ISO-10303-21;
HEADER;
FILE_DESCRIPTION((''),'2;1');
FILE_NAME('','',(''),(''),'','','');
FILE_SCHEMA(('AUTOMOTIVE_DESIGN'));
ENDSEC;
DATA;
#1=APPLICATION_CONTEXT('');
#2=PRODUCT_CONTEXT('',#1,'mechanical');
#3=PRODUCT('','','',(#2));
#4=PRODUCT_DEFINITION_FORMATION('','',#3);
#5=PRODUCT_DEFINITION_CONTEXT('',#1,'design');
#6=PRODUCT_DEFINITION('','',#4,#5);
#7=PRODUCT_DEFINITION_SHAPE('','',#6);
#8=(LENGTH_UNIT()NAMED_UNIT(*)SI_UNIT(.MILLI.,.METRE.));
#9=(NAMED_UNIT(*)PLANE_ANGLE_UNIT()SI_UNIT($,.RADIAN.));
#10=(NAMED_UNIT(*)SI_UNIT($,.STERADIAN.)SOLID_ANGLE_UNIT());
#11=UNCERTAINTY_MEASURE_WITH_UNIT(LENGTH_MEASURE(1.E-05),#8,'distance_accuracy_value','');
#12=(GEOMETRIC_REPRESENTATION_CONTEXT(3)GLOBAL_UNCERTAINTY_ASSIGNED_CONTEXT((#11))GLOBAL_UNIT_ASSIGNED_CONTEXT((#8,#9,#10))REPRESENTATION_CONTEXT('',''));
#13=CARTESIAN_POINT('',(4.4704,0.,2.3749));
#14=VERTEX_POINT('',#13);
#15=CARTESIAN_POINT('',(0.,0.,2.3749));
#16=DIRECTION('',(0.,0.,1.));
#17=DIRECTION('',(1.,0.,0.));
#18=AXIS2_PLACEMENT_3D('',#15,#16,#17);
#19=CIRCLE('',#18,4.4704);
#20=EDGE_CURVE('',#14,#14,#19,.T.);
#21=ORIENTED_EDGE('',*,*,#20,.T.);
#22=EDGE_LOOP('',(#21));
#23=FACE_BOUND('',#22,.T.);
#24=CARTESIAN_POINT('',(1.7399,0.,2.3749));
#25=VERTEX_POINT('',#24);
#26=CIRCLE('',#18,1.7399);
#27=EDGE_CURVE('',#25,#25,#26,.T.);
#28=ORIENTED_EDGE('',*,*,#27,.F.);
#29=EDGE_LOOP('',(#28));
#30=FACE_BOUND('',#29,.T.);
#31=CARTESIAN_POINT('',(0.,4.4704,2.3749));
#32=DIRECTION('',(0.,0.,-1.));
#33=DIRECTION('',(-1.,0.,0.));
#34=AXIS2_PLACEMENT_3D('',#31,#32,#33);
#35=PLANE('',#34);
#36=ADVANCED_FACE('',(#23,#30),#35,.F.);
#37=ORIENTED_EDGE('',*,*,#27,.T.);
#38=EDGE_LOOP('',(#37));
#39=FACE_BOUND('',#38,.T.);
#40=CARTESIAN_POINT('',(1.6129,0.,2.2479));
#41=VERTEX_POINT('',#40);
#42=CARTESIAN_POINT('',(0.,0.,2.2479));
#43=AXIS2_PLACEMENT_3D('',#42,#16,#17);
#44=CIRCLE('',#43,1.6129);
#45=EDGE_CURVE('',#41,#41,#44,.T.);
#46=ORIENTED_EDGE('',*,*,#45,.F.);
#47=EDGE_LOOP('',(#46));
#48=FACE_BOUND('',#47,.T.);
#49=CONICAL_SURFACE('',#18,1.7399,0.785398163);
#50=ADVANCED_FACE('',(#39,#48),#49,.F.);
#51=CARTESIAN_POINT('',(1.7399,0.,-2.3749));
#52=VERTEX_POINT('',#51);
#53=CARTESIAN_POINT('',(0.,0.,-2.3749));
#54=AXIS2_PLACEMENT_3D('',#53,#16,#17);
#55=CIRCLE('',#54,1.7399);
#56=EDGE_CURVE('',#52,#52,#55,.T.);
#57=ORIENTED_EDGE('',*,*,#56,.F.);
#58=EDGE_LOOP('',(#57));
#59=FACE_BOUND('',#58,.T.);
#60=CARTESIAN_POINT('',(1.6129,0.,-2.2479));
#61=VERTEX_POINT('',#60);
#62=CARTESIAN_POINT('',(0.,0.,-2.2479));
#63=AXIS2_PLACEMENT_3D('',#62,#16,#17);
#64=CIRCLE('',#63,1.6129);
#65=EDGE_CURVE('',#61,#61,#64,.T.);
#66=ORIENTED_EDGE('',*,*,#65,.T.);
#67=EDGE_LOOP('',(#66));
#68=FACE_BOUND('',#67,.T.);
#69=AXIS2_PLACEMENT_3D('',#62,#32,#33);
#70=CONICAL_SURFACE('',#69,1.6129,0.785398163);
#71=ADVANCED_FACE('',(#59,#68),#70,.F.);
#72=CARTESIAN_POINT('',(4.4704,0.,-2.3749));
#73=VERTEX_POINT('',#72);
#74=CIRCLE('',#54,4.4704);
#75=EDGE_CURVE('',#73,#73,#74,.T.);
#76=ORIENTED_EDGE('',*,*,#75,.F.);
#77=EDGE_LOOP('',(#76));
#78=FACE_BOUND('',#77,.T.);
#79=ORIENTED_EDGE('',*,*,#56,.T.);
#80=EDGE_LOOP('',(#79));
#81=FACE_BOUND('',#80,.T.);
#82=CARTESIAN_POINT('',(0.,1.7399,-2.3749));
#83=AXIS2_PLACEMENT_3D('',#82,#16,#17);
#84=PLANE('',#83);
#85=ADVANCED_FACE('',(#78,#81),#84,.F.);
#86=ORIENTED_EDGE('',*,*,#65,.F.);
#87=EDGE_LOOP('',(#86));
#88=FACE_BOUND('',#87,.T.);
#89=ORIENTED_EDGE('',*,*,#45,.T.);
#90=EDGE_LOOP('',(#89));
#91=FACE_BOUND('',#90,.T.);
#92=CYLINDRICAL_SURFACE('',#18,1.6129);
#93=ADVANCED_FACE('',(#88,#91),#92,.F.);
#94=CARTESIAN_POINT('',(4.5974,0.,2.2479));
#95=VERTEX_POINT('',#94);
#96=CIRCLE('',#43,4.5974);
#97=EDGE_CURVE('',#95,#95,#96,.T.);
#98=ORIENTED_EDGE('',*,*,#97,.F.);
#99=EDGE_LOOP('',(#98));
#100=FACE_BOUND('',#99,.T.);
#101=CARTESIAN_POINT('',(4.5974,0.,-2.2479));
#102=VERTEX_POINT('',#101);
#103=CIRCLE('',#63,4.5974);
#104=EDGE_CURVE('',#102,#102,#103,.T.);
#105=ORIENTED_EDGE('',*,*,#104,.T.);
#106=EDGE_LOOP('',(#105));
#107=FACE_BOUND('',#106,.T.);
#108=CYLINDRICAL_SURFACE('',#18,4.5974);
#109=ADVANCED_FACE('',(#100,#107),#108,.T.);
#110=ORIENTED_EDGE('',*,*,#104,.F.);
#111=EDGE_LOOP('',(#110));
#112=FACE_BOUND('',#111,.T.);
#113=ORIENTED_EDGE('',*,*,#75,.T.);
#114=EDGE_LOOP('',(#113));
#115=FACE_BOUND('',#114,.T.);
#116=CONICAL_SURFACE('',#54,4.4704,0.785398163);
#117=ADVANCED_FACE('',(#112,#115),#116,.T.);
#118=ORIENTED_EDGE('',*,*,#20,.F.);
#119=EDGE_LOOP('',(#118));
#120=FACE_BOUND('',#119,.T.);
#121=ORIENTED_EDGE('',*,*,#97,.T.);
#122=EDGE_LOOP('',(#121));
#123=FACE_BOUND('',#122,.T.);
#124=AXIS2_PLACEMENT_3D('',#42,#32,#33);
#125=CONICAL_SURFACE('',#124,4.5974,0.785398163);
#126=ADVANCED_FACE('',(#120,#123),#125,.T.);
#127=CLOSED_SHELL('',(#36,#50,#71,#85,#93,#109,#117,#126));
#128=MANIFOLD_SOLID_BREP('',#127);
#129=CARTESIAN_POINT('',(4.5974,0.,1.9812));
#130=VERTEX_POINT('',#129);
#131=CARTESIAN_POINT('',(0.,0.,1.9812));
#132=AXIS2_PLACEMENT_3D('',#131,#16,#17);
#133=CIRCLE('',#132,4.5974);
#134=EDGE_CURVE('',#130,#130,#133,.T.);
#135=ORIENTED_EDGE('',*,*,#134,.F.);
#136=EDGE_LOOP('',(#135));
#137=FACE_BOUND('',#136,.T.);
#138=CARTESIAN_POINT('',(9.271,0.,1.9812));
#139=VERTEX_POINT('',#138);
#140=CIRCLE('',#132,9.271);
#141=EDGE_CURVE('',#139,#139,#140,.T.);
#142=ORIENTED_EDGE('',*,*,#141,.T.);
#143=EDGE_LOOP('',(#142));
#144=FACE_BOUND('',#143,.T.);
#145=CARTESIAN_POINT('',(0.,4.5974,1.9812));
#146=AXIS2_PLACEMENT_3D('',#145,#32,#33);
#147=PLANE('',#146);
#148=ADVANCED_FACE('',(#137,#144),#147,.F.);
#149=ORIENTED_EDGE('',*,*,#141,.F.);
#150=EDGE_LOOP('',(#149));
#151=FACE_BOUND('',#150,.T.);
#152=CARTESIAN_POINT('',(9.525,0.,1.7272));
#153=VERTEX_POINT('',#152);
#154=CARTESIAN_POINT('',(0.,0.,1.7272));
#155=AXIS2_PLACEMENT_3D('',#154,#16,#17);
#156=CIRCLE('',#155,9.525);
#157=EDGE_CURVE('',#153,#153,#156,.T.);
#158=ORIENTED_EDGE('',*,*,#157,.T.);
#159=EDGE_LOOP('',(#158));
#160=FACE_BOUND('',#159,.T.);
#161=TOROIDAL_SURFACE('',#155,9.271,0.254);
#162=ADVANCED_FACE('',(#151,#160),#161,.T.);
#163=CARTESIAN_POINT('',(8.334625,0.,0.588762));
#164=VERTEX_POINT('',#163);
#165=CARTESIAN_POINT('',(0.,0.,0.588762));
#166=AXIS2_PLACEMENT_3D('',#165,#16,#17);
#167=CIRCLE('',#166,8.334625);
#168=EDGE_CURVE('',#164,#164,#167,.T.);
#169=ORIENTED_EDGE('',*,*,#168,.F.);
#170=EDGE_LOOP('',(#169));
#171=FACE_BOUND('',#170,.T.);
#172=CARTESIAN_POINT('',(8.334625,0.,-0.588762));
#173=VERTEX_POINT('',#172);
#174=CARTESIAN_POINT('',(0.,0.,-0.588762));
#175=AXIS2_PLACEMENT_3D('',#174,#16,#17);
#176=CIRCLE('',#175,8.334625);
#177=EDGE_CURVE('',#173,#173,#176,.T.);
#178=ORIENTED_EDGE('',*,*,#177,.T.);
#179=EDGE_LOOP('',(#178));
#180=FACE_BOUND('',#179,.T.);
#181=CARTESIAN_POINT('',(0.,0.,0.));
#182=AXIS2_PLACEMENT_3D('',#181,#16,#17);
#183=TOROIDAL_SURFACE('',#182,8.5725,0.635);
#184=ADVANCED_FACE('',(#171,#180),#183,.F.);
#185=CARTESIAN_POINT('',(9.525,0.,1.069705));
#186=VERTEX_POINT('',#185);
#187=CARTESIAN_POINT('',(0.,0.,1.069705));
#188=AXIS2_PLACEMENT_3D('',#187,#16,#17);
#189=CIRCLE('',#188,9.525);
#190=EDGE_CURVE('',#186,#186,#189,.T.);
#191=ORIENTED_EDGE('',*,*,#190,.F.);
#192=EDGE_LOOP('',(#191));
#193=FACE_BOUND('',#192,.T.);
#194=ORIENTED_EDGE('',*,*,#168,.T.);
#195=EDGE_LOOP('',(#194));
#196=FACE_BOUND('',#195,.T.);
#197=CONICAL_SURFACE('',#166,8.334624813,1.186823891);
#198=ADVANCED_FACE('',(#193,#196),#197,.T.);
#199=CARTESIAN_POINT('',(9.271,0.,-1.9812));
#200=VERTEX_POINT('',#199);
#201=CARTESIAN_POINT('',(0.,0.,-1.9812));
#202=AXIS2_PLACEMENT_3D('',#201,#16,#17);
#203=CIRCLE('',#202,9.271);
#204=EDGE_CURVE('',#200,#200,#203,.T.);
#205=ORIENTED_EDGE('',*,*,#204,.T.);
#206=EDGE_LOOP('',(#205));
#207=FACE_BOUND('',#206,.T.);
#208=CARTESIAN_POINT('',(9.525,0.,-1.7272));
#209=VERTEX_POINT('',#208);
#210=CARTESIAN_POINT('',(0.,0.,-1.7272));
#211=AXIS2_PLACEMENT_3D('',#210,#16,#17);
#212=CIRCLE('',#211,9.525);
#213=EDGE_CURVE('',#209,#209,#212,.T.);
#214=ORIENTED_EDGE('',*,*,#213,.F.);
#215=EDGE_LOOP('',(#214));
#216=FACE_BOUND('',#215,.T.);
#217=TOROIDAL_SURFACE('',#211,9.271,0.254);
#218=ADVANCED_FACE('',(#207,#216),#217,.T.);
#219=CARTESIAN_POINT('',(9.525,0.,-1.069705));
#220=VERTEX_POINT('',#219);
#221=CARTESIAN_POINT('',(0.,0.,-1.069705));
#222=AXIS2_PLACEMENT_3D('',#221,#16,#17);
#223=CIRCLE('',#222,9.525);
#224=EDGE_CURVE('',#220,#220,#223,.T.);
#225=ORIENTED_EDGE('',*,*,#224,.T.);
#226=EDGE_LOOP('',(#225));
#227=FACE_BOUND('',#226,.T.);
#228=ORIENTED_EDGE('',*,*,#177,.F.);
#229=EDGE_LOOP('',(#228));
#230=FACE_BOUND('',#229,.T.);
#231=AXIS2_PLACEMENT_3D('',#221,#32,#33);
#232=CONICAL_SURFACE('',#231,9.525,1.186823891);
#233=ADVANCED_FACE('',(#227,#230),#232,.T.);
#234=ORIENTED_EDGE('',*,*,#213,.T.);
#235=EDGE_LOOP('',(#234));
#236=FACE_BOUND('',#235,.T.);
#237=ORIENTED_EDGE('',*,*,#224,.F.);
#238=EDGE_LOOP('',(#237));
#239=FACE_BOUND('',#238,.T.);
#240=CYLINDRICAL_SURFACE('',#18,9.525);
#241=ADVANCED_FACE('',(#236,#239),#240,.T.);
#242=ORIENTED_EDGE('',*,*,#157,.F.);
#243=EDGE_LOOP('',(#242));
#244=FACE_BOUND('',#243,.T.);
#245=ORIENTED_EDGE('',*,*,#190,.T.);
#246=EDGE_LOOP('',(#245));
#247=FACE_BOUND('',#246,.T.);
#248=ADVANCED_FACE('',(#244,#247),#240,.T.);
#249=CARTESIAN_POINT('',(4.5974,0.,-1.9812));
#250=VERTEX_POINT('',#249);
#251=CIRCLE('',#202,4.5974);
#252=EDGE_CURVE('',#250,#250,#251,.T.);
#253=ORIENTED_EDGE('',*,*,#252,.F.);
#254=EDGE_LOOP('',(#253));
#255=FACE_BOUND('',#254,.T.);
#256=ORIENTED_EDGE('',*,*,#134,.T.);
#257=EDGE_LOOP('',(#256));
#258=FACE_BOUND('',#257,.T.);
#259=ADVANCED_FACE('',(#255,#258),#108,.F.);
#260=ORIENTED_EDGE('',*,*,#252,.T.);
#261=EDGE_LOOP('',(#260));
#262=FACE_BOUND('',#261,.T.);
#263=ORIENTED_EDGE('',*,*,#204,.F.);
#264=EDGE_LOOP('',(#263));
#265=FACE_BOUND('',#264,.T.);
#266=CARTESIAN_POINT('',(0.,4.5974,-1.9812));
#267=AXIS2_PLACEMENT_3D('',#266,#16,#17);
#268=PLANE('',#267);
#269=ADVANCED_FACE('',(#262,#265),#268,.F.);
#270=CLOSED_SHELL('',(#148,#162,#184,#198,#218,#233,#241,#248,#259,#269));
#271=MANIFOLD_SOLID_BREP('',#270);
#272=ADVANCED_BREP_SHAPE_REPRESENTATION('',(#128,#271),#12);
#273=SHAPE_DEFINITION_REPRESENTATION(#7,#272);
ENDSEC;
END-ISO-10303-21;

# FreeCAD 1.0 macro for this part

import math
import FreeCAD as App
import Part
import Sketcher
Q = App.Units.Quantity


def add_polygon(sketch, points):
    """Adds a closed chain of lines whose ends are joined by coincident constraints."""
    first, n = sketch.GeometryCount, len(points)
    for a, b in zip(points, points[1:] + points[:1]):
        sketch.addGeometry(Part.LineSegment(App.Vector(*a, 0), App.Vector(*b, 0)), False)
    for i in range(n):
        sketch.addConstraint(Sketcher.Constraint("Coincident", first + i, 2, first + (i + 1) % n, 1))

doc = App.newDocument("Part")
body = doc.addObject("PartDesign::Body", "Body")

sketch1 = body.newObject("Sketcher::SketchObject", "Sketch")
sketch1.AttachmentSupport = (doc.getObject("YZ_Plane"), [""])
sketch1.MapMode = "FlatFace"
add_polygon(sketch1, [(4.47, 2.37), (1.74, 2.37), (1.61, 2.25), (1.61, -2.25), (1.74, -2.37), (4.47, -2.37), (4.6, -2.25), (4.6, 2.25)])
sketch1.addConstraint([
    Sketcher.Constraint("Horizontal", 0),
    Sketcher.Constraint("Vertical", 2),
    Sketcher.Constraint("Horizontal", 4),
    Sketcher.Constraint("Vertical", 6),
    Sketcher.Constraint("Symmetric", 0, 2, 3, 2, -1),
    Sketcher.Constraint("Perpendicular", 1, 3),
    Sketcher.Constraint("Perpendicular", 3, 5),
    Sketcher.Constraint("Perpendicular", 5, 7),
    Sketcher.Constraint("Horizontal", 2, 2, 5, 2),
    Sketcher.Constraint("Horizontal", 1, 2, 6, 2),
    Sketcher.Constraint("Vertical", 4, 2, 7, 2),
    Sketcher.Constraint("DistanceY", 2, 2, 2, 1, Q("0.177 in")),
    Sketcher.Constraint("DistanceX", 0, 2, 0, 1, Q("0.1075 in")),
    Sketcher.Constraint("DistanceX", -1, 1, 4, 2, Q("0.176 in")),
    Sketcher.Constraint("DistanceX", -1, 1, 5, 2, Q("0.181 in")),
])
revolution = body.newObject("PartDesign::Revolution", "Revolution")
revolution.Profile = sketch1
revolution.ReferenceAxis = (sketch1, ["V_Axis"])
revolution.Angle = 360
body2 = doc.addObject("PartDesign::Body", "Body001")

sketch2 = body2.newObject("Sketcher::SketchObject", "Sketch001")
sketch2.AttachmentSupport = (doc.getObject("YZ_Plane001"), [""])
sketch2.MapMode = "FlatFace"
sketch2.addGeometry([
    Part.LineSegment(App.Vector(4.6, 1.98, 0), App.Vector(4.6, -1.98, 0)),
    Part.LineSegment(App.Vector(4.6, -1.98, 0), App.Vector(9.27, -1.98, 0)),
    Part.ArcOfCircle(Part.Circle(App.Vector(9.27, -1.73, 0), App.Vector(0, 0, 1), 0.25), math.radians(-90), math.radians(0)),
    Part.LineSegment(App.Vector(9.53, -1.73, 0), App.Vector(9.53, -1.07, 0)),
    Part.LineSegment(App.Vector(9.53, -1.07, 0), App.Vector(8.33, -0.59, 0)),
    Part.ArcOfCircle(Part.Circle(App.Vector(8.57, 0, 0), App.Vector(0, 0, 1), 0.64), math.radians(112), math.radians(248)),
    Part.LineSegment(App.Vector(8.33, 0.59, 0), App.Vector(9.53, 1.07, 0)),
    Part.LineSegment(App.Vector(9.53, 1.07, 0), App.Vector(9.53, 1.73, 0)),
    Part.ArcOfCircle(Part.Circle(App.Vector(9.27, 1.73, 0), App.Vector(0, 0, 1), 0.25), math.radians(0), math.radians(90)),
    Part.LineSegment(App.Vector(9.27, 1.98, 0), App.Vector(4.6, 1.98, 0)),
], False)
sketch2.addConstraint([
    Sketcher.Constraint("Coincident", 0, 2, 1, 1),
    Sketcher.Constraint("Tangent", 1, 2, 2, 1),
    Sketcher.Constraint("Tangent", 2, 2, 3, 1),
    Sketcher.Constraint("Coincident", 3, 2, 4, 1),
    Sketcher.Constraint("Tangent", 4, 2, 5, 2),
    Sketcher.Constraint("Tangent", 5, 1, 6, 1),
    Sketcher.Constraint("Coincident", 6, 2, 7, 1),
    Sketcher.Constraint("Tangent", 7, 2, 8, 1),
    Sketcher.Constraint("Tangent", 8, 2, 9, 1),
    Sketcher.Constraint("Coincident", 9, 2, 0, 1),
    Sketcher.Constraint("Vertical", 0),
    Sketcher.Constraint("Horizontal", 1),
    Sketcher.Constraint("Vertical", 3),
    Sketcher.Constraint("Vertical", 7),
    Sketcher.Constraint("Horizontal", 9),
    Sketcher.Constraint("Equal", 2, 8),
    Sketcher.Constraint("Symmetric", 2, 3, 8, 3, -1),
    Sketcher.Constraint("Symmetric", 4, 2, 5, 1, -1),
    Sketcher.Constraint("Radius", 2, Q("0.01 in")),
    Sketcher.Constraint("Angle", 4, Q("158 deg")),
    Sketcher.Constraint("Radius", 5, Q("0.025 in")),
    Sketcher.Constraint("DistanceX", 1, 1, 1, 2, Q("0.184 in")),
    Sketcher.Constraint("DistanceY", 0, 2, 0, 1, Q("0.156 in")),
    Sketcher.Constraint("DistanceX", -1, 1, 2, 3, Q("0.365 in")),
    Sketcher.Constraint("DistanceX", -1, 1, 5, 3, Q("0.3375 in")),
])
revolution2 = body2.newObject("PartDesign::Revolution", "Revolution001")
revolution2.Profile = sketch2
revolution2.ReferenceAxis = (sketch2, ["V_Axis"])
revolution2.Angle = 360

doc.recompute()
